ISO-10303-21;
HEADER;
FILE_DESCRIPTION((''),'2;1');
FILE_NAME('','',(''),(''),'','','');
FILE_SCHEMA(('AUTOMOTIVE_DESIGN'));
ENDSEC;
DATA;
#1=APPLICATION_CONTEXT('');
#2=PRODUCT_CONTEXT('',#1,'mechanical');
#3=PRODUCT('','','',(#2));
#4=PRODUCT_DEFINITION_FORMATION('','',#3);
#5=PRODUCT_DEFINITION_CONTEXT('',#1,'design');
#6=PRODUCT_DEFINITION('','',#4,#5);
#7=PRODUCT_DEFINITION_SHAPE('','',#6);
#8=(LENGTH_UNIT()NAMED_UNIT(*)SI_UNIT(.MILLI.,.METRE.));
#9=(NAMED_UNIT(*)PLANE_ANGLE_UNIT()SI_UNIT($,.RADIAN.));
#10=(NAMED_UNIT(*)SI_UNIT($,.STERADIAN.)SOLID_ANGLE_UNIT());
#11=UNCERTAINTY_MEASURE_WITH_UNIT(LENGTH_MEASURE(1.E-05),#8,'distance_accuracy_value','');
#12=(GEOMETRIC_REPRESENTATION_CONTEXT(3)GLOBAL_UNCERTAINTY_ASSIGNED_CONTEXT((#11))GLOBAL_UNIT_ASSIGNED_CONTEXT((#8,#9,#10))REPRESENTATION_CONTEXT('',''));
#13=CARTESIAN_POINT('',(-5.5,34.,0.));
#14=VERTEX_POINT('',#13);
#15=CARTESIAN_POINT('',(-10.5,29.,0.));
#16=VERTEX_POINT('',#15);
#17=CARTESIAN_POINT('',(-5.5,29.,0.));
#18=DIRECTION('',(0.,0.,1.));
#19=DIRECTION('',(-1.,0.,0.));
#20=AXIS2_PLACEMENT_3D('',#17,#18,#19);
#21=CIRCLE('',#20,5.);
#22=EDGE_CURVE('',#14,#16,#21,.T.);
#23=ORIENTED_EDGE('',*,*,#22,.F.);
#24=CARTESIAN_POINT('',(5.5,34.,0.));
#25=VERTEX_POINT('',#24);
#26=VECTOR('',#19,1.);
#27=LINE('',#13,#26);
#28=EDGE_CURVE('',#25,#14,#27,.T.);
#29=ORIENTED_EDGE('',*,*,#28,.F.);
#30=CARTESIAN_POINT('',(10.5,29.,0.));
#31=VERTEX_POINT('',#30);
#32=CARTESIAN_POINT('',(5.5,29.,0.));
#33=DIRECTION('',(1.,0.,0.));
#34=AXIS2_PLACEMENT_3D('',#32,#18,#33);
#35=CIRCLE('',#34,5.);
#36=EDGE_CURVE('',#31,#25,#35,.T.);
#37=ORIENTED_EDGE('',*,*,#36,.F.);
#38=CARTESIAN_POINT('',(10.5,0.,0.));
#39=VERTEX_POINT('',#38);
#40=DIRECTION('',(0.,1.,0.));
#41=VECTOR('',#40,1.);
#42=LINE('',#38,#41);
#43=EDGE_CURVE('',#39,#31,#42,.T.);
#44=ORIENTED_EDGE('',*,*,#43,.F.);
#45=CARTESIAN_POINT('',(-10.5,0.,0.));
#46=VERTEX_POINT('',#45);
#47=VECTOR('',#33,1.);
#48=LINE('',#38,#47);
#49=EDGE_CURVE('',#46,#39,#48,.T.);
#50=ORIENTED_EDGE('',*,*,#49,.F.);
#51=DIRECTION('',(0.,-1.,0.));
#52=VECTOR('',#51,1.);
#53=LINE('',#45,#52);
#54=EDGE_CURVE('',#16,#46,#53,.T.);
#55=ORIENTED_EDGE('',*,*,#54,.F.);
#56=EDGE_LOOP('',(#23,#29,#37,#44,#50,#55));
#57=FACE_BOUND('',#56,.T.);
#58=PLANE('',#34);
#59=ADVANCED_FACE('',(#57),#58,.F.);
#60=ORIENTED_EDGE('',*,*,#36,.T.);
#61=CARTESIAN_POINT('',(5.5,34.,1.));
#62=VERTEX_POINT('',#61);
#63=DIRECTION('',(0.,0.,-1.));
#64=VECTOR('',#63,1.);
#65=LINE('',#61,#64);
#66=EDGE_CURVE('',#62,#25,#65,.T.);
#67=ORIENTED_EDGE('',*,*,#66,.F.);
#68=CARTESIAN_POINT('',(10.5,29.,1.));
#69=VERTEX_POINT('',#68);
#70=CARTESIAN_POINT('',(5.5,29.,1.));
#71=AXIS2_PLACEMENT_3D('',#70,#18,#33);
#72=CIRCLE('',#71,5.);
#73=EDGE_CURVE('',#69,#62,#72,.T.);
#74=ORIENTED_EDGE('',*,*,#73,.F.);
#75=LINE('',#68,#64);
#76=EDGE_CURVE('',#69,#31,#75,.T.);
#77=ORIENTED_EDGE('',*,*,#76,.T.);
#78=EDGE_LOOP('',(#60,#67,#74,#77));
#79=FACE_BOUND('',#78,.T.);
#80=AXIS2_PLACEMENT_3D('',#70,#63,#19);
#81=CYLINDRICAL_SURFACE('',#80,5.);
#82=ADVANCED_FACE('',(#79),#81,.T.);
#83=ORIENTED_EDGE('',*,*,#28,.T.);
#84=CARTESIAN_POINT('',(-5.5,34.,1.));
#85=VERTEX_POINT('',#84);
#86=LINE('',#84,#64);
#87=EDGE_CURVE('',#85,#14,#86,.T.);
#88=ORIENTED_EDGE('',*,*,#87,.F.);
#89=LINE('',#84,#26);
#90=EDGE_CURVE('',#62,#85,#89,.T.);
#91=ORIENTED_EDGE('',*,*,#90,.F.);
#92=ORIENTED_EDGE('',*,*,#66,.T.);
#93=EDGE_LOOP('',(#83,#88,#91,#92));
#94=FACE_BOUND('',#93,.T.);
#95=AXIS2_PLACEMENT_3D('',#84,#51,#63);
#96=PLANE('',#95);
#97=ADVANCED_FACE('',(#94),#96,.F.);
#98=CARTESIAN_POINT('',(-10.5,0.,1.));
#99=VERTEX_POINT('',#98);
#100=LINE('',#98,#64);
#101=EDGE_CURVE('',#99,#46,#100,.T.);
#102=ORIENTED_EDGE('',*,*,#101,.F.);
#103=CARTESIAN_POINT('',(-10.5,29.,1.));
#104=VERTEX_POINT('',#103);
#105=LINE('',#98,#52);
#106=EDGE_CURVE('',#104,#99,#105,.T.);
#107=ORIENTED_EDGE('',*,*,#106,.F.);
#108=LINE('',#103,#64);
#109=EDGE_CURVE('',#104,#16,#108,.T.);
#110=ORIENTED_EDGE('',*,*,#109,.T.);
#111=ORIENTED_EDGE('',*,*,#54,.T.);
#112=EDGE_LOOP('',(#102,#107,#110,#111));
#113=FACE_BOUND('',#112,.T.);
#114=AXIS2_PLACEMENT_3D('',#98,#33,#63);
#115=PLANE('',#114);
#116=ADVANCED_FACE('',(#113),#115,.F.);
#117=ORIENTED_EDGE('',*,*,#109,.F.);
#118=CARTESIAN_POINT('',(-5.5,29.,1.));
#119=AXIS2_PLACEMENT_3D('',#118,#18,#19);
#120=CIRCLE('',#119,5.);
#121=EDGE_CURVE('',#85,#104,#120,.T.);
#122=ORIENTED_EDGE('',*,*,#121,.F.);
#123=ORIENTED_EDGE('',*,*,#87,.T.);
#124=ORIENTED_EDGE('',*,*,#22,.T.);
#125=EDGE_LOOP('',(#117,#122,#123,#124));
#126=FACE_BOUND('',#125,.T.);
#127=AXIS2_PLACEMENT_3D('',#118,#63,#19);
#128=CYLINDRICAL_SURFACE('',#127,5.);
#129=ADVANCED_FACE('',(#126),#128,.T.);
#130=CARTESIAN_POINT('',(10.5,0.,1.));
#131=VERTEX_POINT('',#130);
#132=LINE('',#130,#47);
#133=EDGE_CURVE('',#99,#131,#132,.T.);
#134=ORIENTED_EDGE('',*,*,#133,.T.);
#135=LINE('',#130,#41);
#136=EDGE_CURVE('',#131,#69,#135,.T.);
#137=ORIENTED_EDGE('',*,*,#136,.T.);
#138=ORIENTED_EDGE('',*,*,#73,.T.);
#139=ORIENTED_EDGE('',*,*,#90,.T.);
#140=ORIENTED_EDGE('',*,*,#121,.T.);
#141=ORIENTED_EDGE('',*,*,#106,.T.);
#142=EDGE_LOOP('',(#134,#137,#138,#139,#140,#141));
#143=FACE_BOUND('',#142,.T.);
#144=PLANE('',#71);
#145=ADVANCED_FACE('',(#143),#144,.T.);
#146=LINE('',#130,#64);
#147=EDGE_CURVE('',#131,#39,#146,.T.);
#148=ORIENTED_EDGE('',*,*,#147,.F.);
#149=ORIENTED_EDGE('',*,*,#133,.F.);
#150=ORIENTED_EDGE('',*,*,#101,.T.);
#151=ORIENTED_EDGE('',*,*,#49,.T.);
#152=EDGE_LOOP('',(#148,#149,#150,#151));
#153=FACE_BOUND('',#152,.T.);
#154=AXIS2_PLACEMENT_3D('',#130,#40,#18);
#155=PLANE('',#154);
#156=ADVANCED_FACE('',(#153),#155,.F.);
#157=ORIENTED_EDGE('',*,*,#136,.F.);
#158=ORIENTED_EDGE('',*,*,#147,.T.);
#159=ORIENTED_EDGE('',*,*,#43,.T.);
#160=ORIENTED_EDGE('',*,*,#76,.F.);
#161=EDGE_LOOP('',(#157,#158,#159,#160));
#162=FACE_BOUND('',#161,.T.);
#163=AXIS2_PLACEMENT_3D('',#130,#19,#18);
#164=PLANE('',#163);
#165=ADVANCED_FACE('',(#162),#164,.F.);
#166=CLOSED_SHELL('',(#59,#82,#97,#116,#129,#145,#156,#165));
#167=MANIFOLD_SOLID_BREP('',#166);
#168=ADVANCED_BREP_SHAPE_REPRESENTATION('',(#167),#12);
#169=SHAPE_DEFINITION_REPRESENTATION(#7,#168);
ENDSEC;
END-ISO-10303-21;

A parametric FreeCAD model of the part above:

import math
import FreeCAD as App
import Part
import Sketcher
from FreeCAD import Vector

doc = App.newDocument("Part")
body = doc.addObject("PartDesign::Body", "Body")

sketch1 = body.newObject("Sketcher::SketchObject", "Sketch")
sketch1.AttachmentSupport = (doc.getObject("XY_Plane"), [""])
sketch1.MapMode = "FlatFace"
sketch1.addGeometry([
    Part.LineSegment(Vector(-10.5, 0, 0), Vector(10.5, 0, 0)),
    Part.LineSegment(Vector(10.5, 0, 0), Vector(10.5, 29, 0)),
    Part.ArcOfCircle(Part.Circle(Vector(5.5, 29, 0), Vector(0, 0, 1), 5), math.radians(0), math.radians(90)),
    Part.LineSegment(Vector(5.5, 34, 0), Vector(-5.5, 34, 0)),
    Part.ArcOfCircle(Part.Circle(Vector(-5.5, 29, 0), Vector(0, 0, 1), 5), math.radians(90), math.radians(180)),
    Part.LineSegment(Vector(-10.5, 29, 0), Vector(-10.5, 0, 0)),
], False)
sketch1.addConstraint([
    Sketcher.Constraint("Coincident", 0, 2, 1, 1),
    Sketcher.Constraint("Tangent", 1, 2, 2, 1),
    Sketcher.Constraint("Tangent", 2, 2, 3, 1),
    Sketcher.Constraint("Tangent", 3, 2, 4, 1),
    Sketcher.Constraint("Tangent", 4, 2, 5, 1),
    Sketcher.Constraint("Coincident", 5, 2, 0, 1),
    Sketcher.Constraint("Horizontal", 0),
    Sketcher.Constraint("Vertical", 1),
    Sketcher.Constraint("Horizontal", 3),
    Sketcher.Constraint("Vertical", 5),
    Sketcher.Constraint("Equal", 2, 4),
    Sketcher.Constraint("Symmetric", 0, 2, 5, 2, -1, 1),
    Sketcher.Constraint("Radius", 2, 5.0),
    Sketcher.Constraint("DistanceX", 0, 1, 0, 2, 21.0),
    Sketcher.Constraint("DistanceY", 1, 1, 1, 2, 29.0),
])
pad1 = body.newObject("PartDesign::Pad", "Pad")
pad1.Profile = sketch1
pad1.Length = 1

doc.recompute()
